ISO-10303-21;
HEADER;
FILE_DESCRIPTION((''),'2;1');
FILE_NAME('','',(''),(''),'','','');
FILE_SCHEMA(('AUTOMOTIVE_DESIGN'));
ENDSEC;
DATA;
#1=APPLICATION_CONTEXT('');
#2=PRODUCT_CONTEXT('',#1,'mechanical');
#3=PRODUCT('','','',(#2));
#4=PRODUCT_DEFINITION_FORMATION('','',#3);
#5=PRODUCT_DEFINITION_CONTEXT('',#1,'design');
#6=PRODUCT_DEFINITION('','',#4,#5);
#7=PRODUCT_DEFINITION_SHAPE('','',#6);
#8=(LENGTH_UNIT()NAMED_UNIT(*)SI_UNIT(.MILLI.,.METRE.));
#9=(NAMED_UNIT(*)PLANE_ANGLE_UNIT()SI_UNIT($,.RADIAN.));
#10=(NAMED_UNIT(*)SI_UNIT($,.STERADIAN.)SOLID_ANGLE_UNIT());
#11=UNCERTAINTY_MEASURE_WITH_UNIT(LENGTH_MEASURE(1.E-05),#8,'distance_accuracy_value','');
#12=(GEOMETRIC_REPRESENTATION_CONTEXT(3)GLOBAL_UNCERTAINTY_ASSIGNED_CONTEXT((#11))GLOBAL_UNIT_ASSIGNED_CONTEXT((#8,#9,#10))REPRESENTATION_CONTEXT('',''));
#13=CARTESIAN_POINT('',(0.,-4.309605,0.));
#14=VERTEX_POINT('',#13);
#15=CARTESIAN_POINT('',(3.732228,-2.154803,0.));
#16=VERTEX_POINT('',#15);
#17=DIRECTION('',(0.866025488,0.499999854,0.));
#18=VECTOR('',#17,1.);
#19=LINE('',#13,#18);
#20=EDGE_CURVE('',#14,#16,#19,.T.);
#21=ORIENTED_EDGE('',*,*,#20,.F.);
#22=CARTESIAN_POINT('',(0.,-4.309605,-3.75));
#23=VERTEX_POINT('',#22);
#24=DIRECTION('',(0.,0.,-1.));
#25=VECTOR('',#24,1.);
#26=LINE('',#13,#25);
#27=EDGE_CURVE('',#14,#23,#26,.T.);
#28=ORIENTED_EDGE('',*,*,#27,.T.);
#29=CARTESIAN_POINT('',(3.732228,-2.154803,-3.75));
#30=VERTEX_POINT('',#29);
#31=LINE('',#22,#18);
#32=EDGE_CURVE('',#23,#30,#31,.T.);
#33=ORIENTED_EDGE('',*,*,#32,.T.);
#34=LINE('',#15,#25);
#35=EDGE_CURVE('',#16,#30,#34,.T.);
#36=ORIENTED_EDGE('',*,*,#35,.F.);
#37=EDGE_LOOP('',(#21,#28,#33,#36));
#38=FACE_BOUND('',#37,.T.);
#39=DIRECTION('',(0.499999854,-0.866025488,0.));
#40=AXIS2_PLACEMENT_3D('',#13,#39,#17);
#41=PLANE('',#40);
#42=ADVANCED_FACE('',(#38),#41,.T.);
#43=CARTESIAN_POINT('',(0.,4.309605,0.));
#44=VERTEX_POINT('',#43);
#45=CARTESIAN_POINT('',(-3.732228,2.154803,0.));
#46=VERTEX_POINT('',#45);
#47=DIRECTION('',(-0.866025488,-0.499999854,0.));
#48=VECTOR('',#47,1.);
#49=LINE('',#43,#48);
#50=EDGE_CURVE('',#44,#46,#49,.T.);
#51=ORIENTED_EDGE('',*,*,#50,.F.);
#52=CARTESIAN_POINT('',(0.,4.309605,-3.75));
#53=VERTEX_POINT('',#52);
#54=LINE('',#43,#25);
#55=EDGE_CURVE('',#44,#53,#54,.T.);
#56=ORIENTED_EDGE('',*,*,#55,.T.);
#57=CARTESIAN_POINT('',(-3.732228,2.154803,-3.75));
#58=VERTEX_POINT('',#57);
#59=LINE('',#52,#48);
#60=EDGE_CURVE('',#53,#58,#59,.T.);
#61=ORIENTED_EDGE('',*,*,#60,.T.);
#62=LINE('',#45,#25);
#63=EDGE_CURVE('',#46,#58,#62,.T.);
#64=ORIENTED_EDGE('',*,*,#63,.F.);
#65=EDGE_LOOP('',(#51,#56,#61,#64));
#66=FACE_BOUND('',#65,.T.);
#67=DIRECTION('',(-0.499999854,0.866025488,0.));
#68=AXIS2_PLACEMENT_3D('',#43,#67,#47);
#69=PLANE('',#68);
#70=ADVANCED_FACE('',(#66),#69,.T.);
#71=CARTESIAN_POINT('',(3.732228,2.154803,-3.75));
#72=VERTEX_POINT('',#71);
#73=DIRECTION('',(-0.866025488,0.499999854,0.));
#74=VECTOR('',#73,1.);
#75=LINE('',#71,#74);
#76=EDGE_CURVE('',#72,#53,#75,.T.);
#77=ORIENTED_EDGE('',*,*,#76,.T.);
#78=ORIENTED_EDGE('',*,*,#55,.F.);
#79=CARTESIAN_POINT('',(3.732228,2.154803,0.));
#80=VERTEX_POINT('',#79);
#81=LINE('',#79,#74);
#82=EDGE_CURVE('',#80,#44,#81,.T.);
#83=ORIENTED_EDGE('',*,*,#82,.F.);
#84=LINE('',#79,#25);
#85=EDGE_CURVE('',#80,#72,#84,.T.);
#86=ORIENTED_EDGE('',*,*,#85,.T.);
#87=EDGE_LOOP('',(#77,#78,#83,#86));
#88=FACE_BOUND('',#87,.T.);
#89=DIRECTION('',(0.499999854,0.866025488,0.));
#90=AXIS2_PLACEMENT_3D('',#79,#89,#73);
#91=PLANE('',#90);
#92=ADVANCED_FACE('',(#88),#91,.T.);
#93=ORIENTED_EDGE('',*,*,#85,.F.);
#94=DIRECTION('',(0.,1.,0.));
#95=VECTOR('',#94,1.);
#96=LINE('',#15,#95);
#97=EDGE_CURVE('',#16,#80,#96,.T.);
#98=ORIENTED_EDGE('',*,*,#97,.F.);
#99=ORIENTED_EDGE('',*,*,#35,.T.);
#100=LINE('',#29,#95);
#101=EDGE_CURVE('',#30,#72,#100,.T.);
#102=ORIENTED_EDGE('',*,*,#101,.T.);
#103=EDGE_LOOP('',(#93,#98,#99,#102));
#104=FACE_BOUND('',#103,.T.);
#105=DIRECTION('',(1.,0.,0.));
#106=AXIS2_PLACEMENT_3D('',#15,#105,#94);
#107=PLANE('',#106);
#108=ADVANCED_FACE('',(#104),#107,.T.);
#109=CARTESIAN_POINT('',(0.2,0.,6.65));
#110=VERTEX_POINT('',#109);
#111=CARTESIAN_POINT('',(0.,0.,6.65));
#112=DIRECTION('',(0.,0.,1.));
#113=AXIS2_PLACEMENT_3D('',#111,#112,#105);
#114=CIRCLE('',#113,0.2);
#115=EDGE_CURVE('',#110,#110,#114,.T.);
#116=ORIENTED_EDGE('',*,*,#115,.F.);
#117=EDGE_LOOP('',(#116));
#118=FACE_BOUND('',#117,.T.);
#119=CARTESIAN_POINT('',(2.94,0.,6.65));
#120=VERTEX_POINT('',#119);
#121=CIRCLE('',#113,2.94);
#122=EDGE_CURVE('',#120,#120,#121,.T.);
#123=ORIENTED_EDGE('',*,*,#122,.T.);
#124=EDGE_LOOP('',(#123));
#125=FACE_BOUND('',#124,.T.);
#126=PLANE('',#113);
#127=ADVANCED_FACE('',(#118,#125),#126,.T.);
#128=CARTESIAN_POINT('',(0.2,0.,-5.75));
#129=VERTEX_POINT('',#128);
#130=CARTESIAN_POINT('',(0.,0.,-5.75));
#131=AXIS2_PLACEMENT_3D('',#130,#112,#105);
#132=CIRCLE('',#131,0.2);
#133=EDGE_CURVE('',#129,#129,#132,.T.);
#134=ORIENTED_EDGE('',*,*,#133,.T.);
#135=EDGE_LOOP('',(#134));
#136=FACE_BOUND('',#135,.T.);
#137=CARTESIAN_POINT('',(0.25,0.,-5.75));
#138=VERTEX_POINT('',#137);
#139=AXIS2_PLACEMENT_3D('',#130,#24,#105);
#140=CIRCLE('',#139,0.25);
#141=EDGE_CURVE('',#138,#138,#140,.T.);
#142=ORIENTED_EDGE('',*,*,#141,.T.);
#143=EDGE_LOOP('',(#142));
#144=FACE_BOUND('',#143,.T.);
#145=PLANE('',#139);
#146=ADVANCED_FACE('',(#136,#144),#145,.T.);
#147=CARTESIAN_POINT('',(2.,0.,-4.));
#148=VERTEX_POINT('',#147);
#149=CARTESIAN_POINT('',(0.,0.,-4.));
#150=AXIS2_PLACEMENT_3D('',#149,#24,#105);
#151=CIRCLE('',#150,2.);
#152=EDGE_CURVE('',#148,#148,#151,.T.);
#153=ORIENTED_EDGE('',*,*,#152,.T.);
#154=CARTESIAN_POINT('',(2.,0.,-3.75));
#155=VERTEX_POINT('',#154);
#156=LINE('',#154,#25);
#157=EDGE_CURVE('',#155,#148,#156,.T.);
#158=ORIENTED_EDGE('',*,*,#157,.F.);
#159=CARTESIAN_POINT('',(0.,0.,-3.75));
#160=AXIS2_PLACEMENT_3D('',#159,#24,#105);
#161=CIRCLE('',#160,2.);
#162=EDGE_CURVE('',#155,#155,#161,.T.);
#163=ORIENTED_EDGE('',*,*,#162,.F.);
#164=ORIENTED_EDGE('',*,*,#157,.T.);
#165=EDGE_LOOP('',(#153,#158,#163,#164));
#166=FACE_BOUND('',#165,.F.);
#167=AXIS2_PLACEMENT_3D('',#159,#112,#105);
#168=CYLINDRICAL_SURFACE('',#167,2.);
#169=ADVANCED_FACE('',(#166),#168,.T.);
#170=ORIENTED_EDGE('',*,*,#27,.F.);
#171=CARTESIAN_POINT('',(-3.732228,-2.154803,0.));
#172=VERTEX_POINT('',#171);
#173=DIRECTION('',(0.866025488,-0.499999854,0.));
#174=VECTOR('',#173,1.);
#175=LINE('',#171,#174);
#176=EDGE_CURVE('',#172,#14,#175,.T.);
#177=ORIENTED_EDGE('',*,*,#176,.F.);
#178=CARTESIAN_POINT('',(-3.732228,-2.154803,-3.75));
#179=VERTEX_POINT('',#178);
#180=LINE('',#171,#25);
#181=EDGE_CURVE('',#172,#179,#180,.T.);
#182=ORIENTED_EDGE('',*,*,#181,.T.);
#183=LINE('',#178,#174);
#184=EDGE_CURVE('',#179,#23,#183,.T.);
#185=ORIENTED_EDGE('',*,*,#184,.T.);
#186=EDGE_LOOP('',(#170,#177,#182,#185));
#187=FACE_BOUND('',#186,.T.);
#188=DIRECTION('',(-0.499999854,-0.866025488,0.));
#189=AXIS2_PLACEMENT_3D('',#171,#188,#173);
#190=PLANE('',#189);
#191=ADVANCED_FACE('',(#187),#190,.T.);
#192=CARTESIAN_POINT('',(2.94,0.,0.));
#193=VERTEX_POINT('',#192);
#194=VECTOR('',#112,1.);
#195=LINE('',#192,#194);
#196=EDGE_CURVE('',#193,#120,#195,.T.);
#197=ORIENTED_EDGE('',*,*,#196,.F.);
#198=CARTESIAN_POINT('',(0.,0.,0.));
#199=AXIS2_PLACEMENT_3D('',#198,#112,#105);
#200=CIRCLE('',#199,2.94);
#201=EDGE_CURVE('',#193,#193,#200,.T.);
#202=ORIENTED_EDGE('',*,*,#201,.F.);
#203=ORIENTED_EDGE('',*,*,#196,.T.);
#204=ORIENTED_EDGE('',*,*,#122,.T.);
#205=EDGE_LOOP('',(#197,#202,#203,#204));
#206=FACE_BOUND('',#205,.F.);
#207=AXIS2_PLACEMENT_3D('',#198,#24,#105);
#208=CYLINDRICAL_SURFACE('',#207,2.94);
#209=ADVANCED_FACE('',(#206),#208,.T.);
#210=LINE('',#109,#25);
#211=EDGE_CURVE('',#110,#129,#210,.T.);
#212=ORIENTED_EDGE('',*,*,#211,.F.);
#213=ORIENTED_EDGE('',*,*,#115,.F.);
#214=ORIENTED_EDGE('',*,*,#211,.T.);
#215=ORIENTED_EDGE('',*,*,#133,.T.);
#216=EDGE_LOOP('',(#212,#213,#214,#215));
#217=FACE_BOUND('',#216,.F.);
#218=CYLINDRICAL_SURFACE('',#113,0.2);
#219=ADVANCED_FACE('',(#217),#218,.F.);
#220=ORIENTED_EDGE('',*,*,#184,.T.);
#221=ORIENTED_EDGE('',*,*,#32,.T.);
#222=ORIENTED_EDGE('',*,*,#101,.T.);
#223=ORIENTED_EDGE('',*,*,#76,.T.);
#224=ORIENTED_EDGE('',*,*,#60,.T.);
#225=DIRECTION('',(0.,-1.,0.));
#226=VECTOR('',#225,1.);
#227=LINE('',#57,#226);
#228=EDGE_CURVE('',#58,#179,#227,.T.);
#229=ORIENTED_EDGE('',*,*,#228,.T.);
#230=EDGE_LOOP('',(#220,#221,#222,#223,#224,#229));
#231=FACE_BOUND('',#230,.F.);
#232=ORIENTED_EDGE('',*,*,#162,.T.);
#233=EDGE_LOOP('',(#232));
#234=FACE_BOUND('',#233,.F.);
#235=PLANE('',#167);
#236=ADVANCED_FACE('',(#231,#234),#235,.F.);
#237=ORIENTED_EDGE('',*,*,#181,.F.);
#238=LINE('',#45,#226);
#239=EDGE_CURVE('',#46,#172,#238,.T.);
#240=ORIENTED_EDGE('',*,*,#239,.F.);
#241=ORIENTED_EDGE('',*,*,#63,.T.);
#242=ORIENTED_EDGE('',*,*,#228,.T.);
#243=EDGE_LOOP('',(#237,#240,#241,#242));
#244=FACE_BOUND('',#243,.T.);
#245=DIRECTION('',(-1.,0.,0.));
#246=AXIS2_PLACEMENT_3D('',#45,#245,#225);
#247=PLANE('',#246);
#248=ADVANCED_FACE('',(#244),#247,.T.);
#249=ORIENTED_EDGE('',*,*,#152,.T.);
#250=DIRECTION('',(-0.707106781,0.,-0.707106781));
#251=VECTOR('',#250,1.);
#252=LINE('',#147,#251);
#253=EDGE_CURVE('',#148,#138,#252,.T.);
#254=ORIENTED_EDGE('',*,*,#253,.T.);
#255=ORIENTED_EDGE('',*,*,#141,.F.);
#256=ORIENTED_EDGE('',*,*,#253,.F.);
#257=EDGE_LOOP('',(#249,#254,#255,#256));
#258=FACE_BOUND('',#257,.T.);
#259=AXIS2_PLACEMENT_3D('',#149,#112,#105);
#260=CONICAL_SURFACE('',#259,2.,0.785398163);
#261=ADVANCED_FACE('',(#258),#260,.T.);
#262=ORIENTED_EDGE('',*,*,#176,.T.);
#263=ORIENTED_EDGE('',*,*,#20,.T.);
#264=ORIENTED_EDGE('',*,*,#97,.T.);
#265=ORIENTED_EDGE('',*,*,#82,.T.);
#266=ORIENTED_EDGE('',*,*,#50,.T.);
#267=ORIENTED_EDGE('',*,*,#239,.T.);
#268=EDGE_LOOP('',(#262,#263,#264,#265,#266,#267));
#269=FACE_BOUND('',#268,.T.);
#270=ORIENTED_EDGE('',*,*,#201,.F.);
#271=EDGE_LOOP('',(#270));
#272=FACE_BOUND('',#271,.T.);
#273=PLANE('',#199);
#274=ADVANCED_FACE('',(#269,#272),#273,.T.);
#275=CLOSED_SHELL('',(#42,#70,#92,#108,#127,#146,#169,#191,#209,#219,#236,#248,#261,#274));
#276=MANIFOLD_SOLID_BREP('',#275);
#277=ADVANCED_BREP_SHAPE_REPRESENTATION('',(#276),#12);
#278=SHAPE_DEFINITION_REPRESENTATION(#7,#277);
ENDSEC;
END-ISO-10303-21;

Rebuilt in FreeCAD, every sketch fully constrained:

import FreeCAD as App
import Part
import Sketcher

V = App.Vector
Q = App.Units.Quantity


def edges_at(feature, points):
    """Names of the edges that pass closest to the given points."""
    edges = feature.Shape.Edges
    near = lambda p: min(range(len(edges)), key=lambda i: edges[i].distToShape(Part.Vertex(*p))[0])
    return sorted({f"Edge{near(p) + 1}" for p in points})


def add_polygon(sketch, points):
    """Adds a closed chain of lines whose ends are joined by coincident constraints."""
    first, n = sketch.GeometryCount, len(points)
    for a, b in zip(points, points[1:] + points[:1]):
        sketch.addGeometry(Part.LineSegment(App.Vector(*a, 0), App.Vector(*b, 0)), False)
    for i in range(n):
        sketch.addConstraint(Sketcher.Constraint("Coincident", first + i, 2, first + (i + 1) % n, 1))

doc = App.newDocument("Part")
params = doc.addObject("Spreadsheet::Sheet", "Params")
for row, (alias, value) in enumerate([
    ("pad1_length", "3.75 mm"),
    ("sketch2_diameter", "5.88 mm"),
    ("pad2_length", "6.65 mm"),
    ("sketch3_diameter", "4 mm"),
    ("pad3_length", "2 mm"),
    ("chamfer_size", "1.75 mm"),
    ("sketch4_diameter", "0.4 mm"),
], start=1):
    params.set(f"A{row}", alias)
    params.set(f"B{row}", "=" + value)
    params.setAlias(f"B{row}", alias)

body = doc.addObject("PartDesign::Body", "Body")

# Sketch on XY plane
sketch1 = body.newObject("Sketcher::SketchObject", "Sketch")
sketch1.AttachmentSupport = (doc.getObject("XY_Plane"), [""])
sketch1.MapMode = "FlatFace"
add_polygon(sketch1, [(3.7, -2.2), (3.7, 2.2), (0, 4.3), (-3.7, 2.2), (-3.7, -2.2), (0, -4.3)])  # lines 0-5
sketch1.addConstraint([
    Sketcher.Constraint("Vertical", 0),
    Sketcher.Constraint("Vertical", 3),
    Sketcher.Constraint("Symmetric", 0, 2, 3, 2, -1, 1),
    Sketcher.Constraint("Symmetric", 1, 2, 4, 2, -1, 1),
    Sketcher.Constraint("PointOnObject", 1, 2, -2),
    Sketcher.Constraint("Parallel", 2, 5),
    Sketcher.Constraint("Horizontal", 0, 2, 2, 2),
    Sketcher.Constraint("Angle", 1, Q("150.00001 deg")),
    Sketcher.Constraint("DistanceY", 0, 1, 0, 2, Q("4.309606 mm")),
    Sketcher.Constraint("DistanceX", -1, 1, 0, 2, Q("3.732228 mm")),
])
pad1 = body.newObject("PartDesign::Pad", "Pad")
pad1.Profile = sketch1
pad1.setExpression("Length", "Params.pad1_length")
pad1.Reversed = True

# Sketch on XY plane
sketch2 = body.newObject("Sketcher::SketchObject", "Sketch001")
sketch2.AttachmentSupport = (doc.getObject("XY_Plane"), [""])
sketch2.MapMode = "FlatFace"
sketch2.addGeometry(Part.Circle(V(0, 0, 0), V(0, 0, 1), 2.9), False)
sketch2.addConstraint([
    Sketcher.Constraint("Coincident", 0, 3, -1, 1),
    Sketcher.Constraint("Diameter", 0, Q("5.88 mm")),
])
sketch2.setExpression("Constraints[1]", "Params.sketch2_diameter")
pad2 = body.newObject("PartDesign::Pad", "Pad001")
pad2.Profile = sketch2
pad2.setExpression("Length", "Params.pad2_length")

# Sketch on XY plane
sketch3 = body.newObject("Sketcher::SketchObject", "Sketch002")
sketch3.AttachmentSupport = (doc.getObject("XY_Plane"), [""])
sketch3.MapMode = "FlatFace"
sketch3.AttachmentOffset = App.Placement(V(0, 0, -3.75), App.Rotation())
sketch3.addGeometry(Part.Circle(V(0, 0, 0), V(0, 0, 1), 2), False)
sketch3.addConstraint([
    Sketcher.Constraint("Coincident", 0, 3, -1, 1),
    Sketcher.Constraint("Diameter", 0, Q("4 mm")),
])
sketch3.setExpression("Constraints[1]", "Params.sketch3_diameter")
pad3 = body.newObject("PartDesign::Pad", "Pad002")
pad3.Profile = sketch3
pad3.setExpression("Length", "Params.pad3_length")
pad3.Reversed = True
doc.recompute()

chamfer = body.newObject("PartDesign::Chamfer", "Chamfer")
chamfer.Base = (pad3, edges_at(pad3, [(-2, 0, -5.75)]))
chamfer.setExpression("Size", "Params.chamfer_size")

# Sketch on XY plane
sketch4 = body.newObject("Sketcher::SketchObject", "Sketch003")
sketch4.AttachmentSupport = (doc.getObject("XY_Plane"), [""])
sketch4.MapMode = "FlatFace"
sketch4.AttachmentOffset = App.Placement(V(0, 0, 6.65), App.Rotation())
sketch4.addGeometry(Part.Circle(V(0, 0, 0), V(0, 0, 1), 0.2), False)
sketch4.addConstraint([
    Sketcher.Constraint("Coincident", 0, 3, -1, 1),
    Sketcher.Constraint("Diameter", 0, Q("0.4 mm")),
])
sketch4.setExpression("Constraints[1]", "Params.sketch4_diameter")
pocket1 = body.newObject("PartDesign::Pocket", "Pocket")
pocket1.Profile = sketch4
pocket1.Type = "ThroughAll"

doc.recompute()
